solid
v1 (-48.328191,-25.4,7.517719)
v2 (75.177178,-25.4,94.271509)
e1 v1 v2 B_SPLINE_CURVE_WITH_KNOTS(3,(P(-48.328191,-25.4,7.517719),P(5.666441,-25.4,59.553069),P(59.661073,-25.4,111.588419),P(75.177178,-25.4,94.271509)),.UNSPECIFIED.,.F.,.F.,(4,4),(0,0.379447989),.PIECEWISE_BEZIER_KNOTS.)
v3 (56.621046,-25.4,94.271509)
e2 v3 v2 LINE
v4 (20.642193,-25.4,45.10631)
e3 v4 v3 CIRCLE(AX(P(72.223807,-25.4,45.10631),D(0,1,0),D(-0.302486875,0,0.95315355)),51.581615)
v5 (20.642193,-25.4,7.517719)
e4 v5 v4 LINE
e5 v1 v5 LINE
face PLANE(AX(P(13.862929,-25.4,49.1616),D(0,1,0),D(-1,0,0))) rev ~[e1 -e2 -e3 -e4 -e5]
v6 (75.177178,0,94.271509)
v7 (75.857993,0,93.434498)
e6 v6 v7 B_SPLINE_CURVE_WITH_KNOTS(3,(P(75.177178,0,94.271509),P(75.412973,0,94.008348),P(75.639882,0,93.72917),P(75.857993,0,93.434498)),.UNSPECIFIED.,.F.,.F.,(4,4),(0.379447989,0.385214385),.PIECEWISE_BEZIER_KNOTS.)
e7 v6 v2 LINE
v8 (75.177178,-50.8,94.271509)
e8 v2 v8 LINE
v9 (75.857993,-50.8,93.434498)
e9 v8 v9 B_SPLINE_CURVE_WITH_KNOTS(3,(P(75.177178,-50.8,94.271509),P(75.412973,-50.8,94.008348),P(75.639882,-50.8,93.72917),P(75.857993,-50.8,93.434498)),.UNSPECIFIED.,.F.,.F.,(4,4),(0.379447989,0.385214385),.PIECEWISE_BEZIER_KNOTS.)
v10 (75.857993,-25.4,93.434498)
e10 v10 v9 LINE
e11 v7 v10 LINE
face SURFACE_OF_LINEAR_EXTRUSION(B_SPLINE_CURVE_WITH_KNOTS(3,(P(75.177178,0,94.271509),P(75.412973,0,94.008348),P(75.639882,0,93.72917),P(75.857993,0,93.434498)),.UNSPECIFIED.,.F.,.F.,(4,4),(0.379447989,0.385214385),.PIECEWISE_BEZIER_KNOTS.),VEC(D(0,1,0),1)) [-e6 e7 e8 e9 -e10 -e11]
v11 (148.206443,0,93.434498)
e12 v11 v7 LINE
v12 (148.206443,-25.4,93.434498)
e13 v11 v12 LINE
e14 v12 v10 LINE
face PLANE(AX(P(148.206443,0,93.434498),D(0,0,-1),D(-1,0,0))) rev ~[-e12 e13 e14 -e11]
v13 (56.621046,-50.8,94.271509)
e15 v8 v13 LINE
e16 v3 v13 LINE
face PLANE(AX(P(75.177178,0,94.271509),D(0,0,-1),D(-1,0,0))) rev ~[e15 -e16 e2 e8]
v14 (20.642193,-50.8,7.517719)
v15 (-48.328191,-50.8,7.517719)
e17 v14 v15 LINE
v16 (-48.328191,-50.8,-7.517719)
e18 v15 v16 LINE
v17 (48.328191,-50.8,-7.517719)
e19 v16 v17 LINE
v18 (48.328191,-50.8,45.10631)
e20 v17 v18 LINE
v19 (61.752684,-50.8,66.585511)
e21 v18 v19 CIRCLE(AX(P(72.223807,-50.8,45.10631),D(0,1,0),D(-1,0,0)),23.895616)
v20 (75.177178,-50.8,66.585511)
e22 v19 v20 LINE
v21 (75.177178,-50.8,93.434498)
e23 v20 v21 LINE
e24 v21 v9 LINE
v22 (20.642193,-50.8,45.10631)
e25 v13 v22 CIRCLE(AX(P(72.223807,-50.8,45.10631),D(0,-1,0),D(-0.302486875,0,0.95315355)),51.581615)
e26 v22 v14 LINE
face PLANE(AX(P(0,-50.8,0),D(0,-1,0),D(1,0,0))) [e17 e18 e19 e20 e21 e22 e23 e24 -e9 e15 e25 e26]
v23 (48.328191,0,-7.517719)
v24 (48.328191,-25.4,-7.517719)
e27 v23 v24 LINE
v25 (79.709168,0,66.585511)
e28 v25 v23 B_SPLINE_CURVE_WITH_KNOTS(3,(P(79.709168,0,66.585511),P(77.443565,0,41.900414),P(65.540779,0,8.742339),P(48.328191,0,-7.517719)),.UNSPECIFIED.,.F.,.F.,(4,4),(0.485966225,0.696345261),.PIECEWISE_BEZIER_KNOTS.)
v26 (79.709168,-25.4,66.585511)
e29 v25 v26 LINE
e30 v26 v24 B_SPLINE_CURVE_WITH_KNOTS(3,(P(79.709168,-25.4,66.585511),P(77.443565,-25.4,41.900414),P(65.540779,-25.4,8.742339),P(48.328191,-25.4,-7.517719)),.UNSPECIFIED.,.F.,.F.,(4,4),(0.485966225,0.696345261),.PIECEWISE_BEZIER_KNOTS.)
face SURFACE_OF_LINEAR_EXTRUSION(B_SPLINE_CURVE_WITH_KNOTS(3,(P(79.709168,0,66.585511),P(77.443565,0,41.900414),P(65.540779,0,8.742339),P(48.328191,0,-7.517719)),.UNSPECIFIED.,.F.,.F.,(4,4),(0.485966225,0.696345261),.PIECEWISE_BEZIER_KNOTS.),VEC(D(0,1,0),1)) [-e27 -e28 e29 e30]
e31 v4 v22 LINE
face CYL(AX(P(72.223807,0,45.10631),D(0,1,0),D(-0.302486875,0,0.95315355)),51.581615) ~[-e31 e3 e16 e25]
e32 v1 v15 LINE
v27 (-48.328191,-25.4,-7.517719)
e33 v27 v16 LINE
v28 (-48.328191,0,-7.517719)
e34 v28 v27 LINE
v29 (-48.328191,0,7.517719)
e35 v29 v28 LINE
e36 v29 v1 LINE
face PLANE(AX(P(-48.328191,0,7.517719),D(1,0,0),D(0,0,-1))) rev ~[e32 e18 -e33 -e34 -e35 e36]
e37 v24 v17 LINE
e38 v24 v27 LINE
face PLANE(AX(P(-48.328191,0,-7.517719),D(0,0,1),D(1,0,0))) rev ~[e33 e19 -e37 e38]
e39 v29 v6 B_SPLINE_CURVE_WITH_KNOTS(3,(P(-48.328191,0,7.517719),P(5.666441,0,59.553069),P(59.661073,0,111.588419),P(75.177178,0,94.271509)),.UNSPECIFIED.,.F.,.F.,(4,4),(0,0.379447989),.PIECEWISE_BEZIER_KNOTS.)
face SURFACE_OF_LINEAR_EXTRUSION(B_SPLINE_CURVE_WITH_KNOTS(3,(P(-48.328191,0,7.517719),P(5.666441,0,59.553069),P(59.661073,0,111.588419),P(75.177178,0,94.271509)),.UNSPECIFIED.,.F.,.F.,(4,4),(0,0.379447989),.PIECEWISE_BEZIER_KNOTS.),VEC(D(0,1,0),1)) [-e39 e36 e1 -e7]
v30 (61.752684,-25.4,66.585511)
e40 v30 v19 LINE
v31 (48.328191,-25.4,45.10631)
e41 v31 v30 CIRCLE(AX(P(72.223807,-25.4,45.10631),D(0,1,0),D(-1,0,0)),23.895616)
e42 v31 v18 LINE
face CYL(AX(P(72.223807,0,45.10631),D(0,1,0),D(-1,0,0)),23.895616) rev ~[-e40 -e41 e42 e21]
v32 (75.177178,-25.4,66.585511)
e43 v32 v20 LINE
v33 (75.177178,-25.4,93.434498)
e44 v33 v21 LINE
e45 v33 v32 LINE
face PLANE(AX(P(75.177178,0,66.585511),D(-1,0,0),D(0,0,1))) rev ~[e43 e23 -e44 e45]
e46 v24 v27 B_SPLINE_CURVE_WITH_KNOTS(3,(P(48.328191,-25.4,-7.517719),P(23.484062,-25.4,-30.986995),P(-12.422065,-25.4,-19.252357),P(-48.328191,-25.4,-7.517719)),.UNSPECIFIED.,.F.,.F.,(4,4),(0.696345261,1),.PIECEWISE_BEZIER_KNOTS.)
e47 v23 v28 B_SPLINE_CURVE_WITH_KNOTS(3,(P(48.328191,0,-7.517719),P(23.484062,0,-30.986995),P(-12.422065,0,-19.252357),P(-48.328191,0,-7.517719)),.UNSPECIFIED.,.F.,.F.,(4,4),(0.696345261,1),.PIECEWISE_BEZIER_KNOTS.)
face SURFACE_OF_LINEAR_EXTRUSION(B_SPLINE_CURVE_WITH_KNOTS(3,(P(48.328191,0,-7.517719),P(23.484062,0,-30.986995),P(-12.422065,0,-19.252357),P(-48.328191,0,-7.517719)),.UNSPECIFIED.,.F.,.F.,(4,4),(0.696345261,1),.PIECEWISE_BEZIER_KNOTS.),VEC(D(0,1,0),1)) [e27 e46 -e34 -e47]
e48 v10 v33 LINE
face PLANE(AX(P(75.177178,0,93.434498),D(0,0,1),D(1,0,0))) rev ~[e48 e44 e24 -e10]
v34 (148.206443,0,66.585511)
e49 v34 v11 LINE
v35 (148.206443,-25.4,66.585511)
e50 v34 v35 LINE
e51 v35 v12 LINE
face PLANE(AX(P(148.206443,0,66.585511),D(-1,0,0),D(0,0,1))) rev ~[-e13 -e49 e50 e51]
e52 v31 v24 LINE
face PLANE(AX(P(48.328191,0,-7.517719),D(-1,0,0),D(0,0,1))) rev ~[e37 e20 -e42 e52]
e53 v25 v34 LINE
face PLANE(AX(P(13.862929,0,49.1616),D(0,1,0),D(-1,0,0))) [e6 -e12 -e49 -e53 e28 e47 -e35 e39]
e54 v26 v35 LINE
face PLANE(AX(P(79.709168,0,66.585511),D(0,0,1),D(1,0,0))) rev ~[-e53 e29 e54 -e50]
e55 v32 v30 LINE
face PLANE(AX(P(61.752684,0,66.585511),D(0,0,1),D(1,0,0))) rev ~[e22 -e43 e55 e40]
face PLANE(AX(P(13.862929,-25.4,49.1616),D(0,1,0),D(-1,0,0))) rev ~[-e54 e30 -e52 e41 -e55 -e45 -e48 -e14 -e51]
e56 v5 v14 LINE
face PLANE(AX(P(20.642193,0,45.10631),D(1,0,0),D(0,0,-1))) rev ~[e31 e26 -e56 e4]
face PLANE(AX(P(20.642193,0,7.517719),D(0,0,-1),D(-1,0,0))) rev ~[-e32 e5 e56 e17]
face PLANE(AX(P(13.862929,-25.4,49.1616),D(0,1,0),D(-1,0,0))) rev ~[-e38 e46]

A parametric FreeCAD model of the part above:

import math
import FreeCAD as App
import Part
import Sketcher
Q = App.Units.Quantity

doc = App.newDocument("Part")
params = doc.addObject("Spreadsheet::Sheet", "Params")
for row, (alias, value) in enumerate([
    ("pad1_length", "2 in"),
    ("pad2_length", "1 in"),
], start=1):
    params.set(f"A{row}", alias)
    params.set(f"B{row}", "=" + value)
    params.setAlias(f"B{row}", alias)

body = doc.addObject("PartDesign::Body", "Body")

# Sketch on XZ plane
sketch1 = body.newObject("Sketcher::SketchObject", "Sketch")
sketch1.AttachmentSupport = (doc.getObject("XZ_Plane"), [""])
sketch1.MapMode = "FlatFace"
sketch1.addGeometry(Part.LineSegment(App.Vector(-48.328191, 7.517719, 0), App.Vector(-48.328191, -7.517719, 0)), False)
sketch1.addGeometry(Part.LineSegment(App.Vector(-48.328191, -7.517719, 0), App.Vector(48.328191, -7.517719, 0)), False)
sketch1.addGeometry(Part.LineSegment(App.Vector(48.328191, -7.517719, 0), App.Vector(48.328191, 45.10631, 0)), False)
sketch1.addGeometry(Part.ArcOfCircle(Part.Circle(App.Vector(72.223807, 45.10631, 0), App.Vector(0, 0, 1), 23.895616), math.radians(115.98926), math.radians(180)), False)
sketch1.addGeometry(Part.LineSegment(App.Vector(61.752684, 66.585511, 0), App.Vector(75.177178, 66.585511, 0)), False)
sketch1.addGeometry(Part.LineSegment(App.Vector(75.177178, 66.585511, 0), App.Vector(75.177178, 93.434498, 0)), False)
sketch1.addGeometry(Part.LineSegment(App.Vector(75.177178, 93.434498, 0), App.Vector(75.857993, 93.434498, 0)), False)
sketch1.addGeometry(Part.BSplineCurve([App.Vector(75.177178, 94.271509, 0), App.Vector(75.412973, 94.008348, 0), App.Vector(75.639882, 93.72917, 0), App.Vector(75.857993, 93.434498, 0)], [4, 4], [0.379447989, 0.385214385], False, 3, [1, 1, 1, 1], False), False)
sketch1.addGeometry(Part.LineSegment(App.Vector(75.177178, 94.271509, 0), App.Vector(56.621046, 94.271509, 0)), False)
sketch1.addGeometry(Part.ArcOfCircle(Part.Circle(App.Vector(72.223807, 45.10631, 0), App.Vector(0, 0, 1), 51.581615), math.radians(107.607032), math.radians(180)), False)
sketch1.addGeometry(Part.LineSegment(App.Vector(20.642193, 45.10631, 0), App.Vector(20.642193, 7.517719, 0)), False)
sketch1.addGeometry(Part.LineSegment(App.Vector(20.642193, 7.517719, 0), App.Vector(-48.328191, 7.517719, 0)), False)
sketch1.addConstraint(Sketcher.Constraint("Block", 7))
sketch1.addConstraint(Sketcher.Constraint("Coincident", 0, 2, 1, 1))
sketch1.addConstraint(Sketcher.Constraint("Coincident", 1, 2, 2, 1))
sketch1.addConstraint(Sketcher.Constraint("Tangent", 2, 2, 3, 2))
sketch1.addConstraint(Sketcher.Constraint("Coincident", 3, 1, 4, 1))
sketch1.addConstraint(Sketcher.Constraint("Coincident", 4, 2, 5, 1))
sketch1.addConstraint(Sketcher.Constraint("Coincident", 5, 2, 6, 1))
sketch1.addConstraint(Sketcher.Constraint("Coincident", 6, 2, 7, 2))
sketch1.addConstraint(Sketcher.Constraint("Coincident", 7, 1, 8, 1))
sketch1.addConstraint(Sketcher.Constraint("Coincident", 8, 2, 9, 1))
sketch1.addConstraint(Sketcher.Constraint("Tangent", 9, 2, 10, 1))
sketch1.addConstraint(Sketcher.Constraint("Coincident", 10, 2, 11, 1))
sketch1.addConstraint(Sketcher.Constraint("Coincident", 11, 2, 0, 1))
sketch1.addConstraint(Sketcher.Constraint("Vertical", 0))
sketch1.addConstraint(Sketcher.Constraint("Horizontal", 1))
sketch1.addConstraint(Sketcher.Constraint("Vertical", 2))
sketch1.addConstraint(Sketcher.Constraint("Horizontal", 4))
sketch1.addConstraint(Sketcher.Constraint("Vertical", 5))
sketch1.addConstraint(Sketcher.Constraint("Horizontal", 6))
sketch1.addConstraint(Sketcher.Constraint("Horizontal", 8))
sketch1.addConstraint(Sketcher.Constraint("Vertical", 10))
sketch1.addConstraint(Sketcher.Constraint("Horizontal", 11))
sketch1.addConstraint(Sketcher.Constraint("Coincident", 9, 3, 3, 3))
sketch1.addConstraint(Sketcher.Constraint("Symmetric", 1, 2, 11, 2, -1, 1))
sketch1.addConstraint(Sketcher.Constraint("DistanceY", 3, 1, 8, 2, Q("1.0899999 in")))
sketch1.addConstraint(Sketcher.Constraint("DistanceX", 9, 2, 2, 2, Q("1.0899999 in")))
sketch1.addConstraint(Sketcher.Constraint("Radius", 3, 23.895616))
sketch1.addConstraint(Sketcher.Constraint("DistanceY", 2, 1, 2, 2, 52.624029))
sketch1.addConstraint(Sketcher.Constraint("DistanceY", 10, 2, 10, 1, 37.588592))
sketch1.addConstraint(Sketcher.Constraint("DistanceX", 0, 2, 9, 3, 120.551998))
sketch1.addConstraint(Sketcher.Constraint("DistanceX", 4, 1, 4, 2, 13.424493))
pad1 = body.newObject("PartDesign::Pad", "Pad")
pad1.Profile = sketch1
pad1.setExpression("Length", "Params.pad1_length")

# Sketch on XZ plane
sketch2 = body.newObject("Sketcher::SketchObject", "Sketch001")
sketch2.AttachmentSupport = (doc.getObject("XZ_Plane"), [""])
sketch2.MapMode = "FlatFace"
sketch2.addGeometry(Part.BSplineCurve([App.Vector(-48.328191, 7.517719, 0), App.Vector(5.666441, 59.553069, 0), App.Vector(59.661073, 111.588419, 0), App.Vector(75.177178, 94.271509, 0)], [4, 4], [0, 0.379447989], False, 3, [1, 1, 1, 1], False), False)
sketch2.addGeometry(Part.LineSegment(App.Vector(-48.328191, 7.517719, 0), App.Vector(-48.328191, -7.517719, 0)), False)
sketch2.addGeometry(Part.BSplineCurve([App.Vector(48.328191, -7.517719, 0), App.Vector(23.484062, -30.986995, 0), App.Vector(-12.422065, -19.252357, 0), App.Vector(-48.328191, -7.517719, 0)], [4, 4], [0.696345261, 1], False, 3, [1, 1, 1, 1], False), False)
sketch2.addGeometry(Part.BSplineCurve([App.Vector(79.709168, 66.585511, 0), App.Vector(77.443565, 41.900414, 0), App.Vector(65.540779, 8.742339, 0), App.Vector(48.328191, -7.517719, 0)], [4, 4], [0.485966225, 0.696345261], False, 3, [1, 1, 1, 1], False), False)
sketch2.addGeometry(Part.LineSegment(App.Vector(79.709168, 66.585511, 0), App.Vector(148.206443, 66.585511, 0)), False)
sketch2.addGeometry(Part.LineSegment(App.Vector(148.206443, 66.585511, 0), App.Vector(148.206443, 93.434498, 0)), False)
sketch2.addGeometry(Part.LineSegment(App.Vector(148.206443, 93.434498, 0), App.Vector(75.857993, 93.434498, 0)), False)
sketch2.addGeometry(Part.BSplineCurve([App.Vector(75.177178, 94.271509, 0), App.Vector(75.412973, 94.008348, 0), App.Vector(75.639882, 93.72917, 0), App.Vector(75.857993, 93.434498, 0)], [4, 4], [0.379447989, 0.385214385], False, 3, [1, 1, 1, 1], False), False)
sketch2.addConstraint(Sketcher.Constraint("Block", 0))
sketch2.addConstraint(Sketcher.Constraint("Block", 2))
sketch2.addConstraint(Sketcher.Constraint("Block", 3))
sketch2.addConstraint(Sketcher.Constraint("Block", 7))
sketch2.addConstraint(Sketcher.Constraint("Coincident", 0, 1, 1, 1))
sketch2.addConstraint(Sketcher.Constraint("Coincident", 1, 2, 2, 2))
sketch2.addConstraint(Sketcher.Constraint("Coincident", 3, 1, 4, 1))
sketch2.addConstraint(Sketcher.Constraint("Coincident", 4, 2, 5, 1))
sketch2.addConstraint(Sketcher.Constraint("Coincident", 5, 2, 6, 1))
sketch2.addConstraint(Sketcher.Constraint("Coincident", 6, 2, 7, 2))
sketch2.addConstraint(Sketcher.Constraint("Horizontal", 4))
sketch2.addConstraint(Sketcher.Constraint("Vertical", 5))
sketch2.addConstraint(Sketcher.Constraint("Horizontal", 6))
sketch2.addConstraint(Sketcher.Constraint("DistanceX", 6, 2, 6, 1, 72.348449))
pad2 = body.newObject("PartDesign::Pad", "Pad001")
pad2.Profile = sketch2
pad2.setExpression("Length", "Params.pad2_length")

doc.recompute()
